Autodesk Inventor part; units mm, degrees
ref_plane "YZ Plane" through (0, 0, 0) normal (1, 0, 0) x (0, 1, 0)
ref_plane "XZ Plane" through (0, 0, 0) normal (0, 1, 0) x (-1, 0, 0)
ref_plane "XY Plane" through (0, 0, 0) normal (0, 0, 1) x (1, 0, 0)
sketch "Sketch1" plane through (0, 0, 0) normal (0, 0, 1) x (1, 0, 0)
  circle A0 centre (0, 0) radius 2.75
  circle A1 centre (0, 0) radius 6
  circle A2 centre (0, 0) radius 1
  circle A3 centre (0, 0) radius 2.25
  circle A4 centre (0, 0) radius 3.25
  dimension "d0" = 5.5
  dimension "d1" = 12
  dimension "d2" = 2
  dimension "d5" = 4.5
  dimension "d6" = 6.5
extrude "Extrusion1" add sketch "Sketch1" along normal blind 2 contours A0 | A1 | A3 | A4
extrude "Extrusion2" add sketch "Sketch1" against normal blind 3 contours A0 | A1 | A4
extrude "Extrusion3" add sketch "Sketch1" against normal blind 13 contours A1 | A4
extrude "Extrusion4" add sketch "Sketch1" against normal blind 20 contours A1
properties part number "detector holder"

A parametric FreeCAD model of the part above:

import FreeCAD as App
import Part
import Sketcher
from FreeCAD import Vector
Q = App.Units.Quantity

doc = App.newDocument("Part")
body = doc.addObject("PartDesign::Body", "Body")

sketch1 = doc.addObject("Sketcher::SketchObject", "Sketch")
body.addObject(sketch1)
sketch1.AttachmentSupport = (doc.XY_Plane, [""])
sketch1.MapMode = "FlatFace"
sketch1.addGeometry([
    Part.Circle(Vector(0, 0, 0), Vector(0, 0, 1), 6),
    Part.Circle(Vector(0, 0, 0), Vector(0, 0, 1), 1),
], False)
sketch1.addConstraint([
    Sketcher.Constraint("Coincident", 0, 3, -1, 1),
    Sketcher.Constraint("Coincident", 1, 3, -1, 1),
    Sketcher.Constraint("Diameter", 0, Q("12 mm")),
    Sketcher.Constraint("Diameter", 1, Q("2 mm")),
])
pad1 = doc.addObject("PartDesign::Pad", "Pad")
body.addObject(pad1)
pad1.Profile = sketch1
pad1.Length = 2

sketch2 = doc.addObject("Sketcher::SketchObject", "Sketch001")
body.addObject(sketch2)
sketch2.AttachmentSupport = (doc.XY_Plane, [""])
sketch2.MapMode = "FlatFace"
sketch2.addGeometry([
    Part.Circle(Vector(0, 0, 0), Vector(0, 0, 1), 6),
    Part.Circle(Vector(0, 0, 0), Vector(0, 0, 1), 2.2),
], False)
sketch2.addConstraint([
    Sketcher.Constraint("Coincident", 0, 3, -1, 1),
    Sketcher.Constraint("Coincident", 1, 3, -1, 1),
    Sketcher.Constraint("Diameter", 0, Q("12 mm")),
    Sketcher.Constraint("Diameter", 1, Q("4.5 mm")),
])
pad2 = doc.addObject("PartDesign::Pad", "Pad001")
body.addObject(pad2)
pad2.Profile = sketch2
pad2.Length = 3
pad2.Reversed = True

sketch3 = doc.addObject("Sketcher::SketchObject", "Sketch002")
body.addObject(sketch3)
sketch3.AttachmentSupport = (doc.XY_Plane, [""])
sketch3.MapMode = "FlatFace"
sketch3.addGeometry([
    Part.Circle(Vector(0, 0, 0), Vector(0, 0, 1), 6),
    Part.Circle(Vector(0, 0, 0), Vector(0, 0, 1), 2.8),
], False)
sketch3.addConstraint([
    Sketcher.Constraint("Coincident", 0, 3, -1, 1),
    Sketcher.Constraint("Coincident", 1, 3, -1, 1),
    Sketcher.Constraint("Diameter", 0, Q("12 mm")),
    Sketcher.Constraint("Diameter", 1, Q("5.5 mm")),
])
pad3 = doc.addObject("PartDesign::Pad", "Pad002")
body.addObject(pad3)
pad3.Profile = sketch3
pad3.Length = 13
pad3.Reversed = True

sketch4 = doc.addObject("Sketcher::SketchObject", "Sketch003")
body.addObject(sketch4)
sketch4.AttachmentSupport = (doc.XY_Plane, [""])
sketch4.MapMode = "FlatFace"
sketch4.addGeometry([
    Part.Circle(Vector(0, 0, 0), Vector(0, 0, 1), 6),
    Part.Circle(Vector(0, 0, 0), Vector(0, 0, 1), 3.2),
], False)
sketch4.addConstraint([
    Sketcher.Constraint("Coincident", 0, 3, -1, 1),
    Sketcher.Constraint("Coincident", 1, 3, -1, 1),
    Sketcher.Constraint("Diameter", 0, Q("12 mm")),
    Sketcher.Constraint("Diameter", 1, Q("6.5 mm")),
])
pad4 = doc.addObject("PartDesign::Pad", "Pad003")
body.addObject(pad4)
pad4.Profile = sketch4
pad4.Length = 20
pad4.Reversed = True

doc.recompute()
